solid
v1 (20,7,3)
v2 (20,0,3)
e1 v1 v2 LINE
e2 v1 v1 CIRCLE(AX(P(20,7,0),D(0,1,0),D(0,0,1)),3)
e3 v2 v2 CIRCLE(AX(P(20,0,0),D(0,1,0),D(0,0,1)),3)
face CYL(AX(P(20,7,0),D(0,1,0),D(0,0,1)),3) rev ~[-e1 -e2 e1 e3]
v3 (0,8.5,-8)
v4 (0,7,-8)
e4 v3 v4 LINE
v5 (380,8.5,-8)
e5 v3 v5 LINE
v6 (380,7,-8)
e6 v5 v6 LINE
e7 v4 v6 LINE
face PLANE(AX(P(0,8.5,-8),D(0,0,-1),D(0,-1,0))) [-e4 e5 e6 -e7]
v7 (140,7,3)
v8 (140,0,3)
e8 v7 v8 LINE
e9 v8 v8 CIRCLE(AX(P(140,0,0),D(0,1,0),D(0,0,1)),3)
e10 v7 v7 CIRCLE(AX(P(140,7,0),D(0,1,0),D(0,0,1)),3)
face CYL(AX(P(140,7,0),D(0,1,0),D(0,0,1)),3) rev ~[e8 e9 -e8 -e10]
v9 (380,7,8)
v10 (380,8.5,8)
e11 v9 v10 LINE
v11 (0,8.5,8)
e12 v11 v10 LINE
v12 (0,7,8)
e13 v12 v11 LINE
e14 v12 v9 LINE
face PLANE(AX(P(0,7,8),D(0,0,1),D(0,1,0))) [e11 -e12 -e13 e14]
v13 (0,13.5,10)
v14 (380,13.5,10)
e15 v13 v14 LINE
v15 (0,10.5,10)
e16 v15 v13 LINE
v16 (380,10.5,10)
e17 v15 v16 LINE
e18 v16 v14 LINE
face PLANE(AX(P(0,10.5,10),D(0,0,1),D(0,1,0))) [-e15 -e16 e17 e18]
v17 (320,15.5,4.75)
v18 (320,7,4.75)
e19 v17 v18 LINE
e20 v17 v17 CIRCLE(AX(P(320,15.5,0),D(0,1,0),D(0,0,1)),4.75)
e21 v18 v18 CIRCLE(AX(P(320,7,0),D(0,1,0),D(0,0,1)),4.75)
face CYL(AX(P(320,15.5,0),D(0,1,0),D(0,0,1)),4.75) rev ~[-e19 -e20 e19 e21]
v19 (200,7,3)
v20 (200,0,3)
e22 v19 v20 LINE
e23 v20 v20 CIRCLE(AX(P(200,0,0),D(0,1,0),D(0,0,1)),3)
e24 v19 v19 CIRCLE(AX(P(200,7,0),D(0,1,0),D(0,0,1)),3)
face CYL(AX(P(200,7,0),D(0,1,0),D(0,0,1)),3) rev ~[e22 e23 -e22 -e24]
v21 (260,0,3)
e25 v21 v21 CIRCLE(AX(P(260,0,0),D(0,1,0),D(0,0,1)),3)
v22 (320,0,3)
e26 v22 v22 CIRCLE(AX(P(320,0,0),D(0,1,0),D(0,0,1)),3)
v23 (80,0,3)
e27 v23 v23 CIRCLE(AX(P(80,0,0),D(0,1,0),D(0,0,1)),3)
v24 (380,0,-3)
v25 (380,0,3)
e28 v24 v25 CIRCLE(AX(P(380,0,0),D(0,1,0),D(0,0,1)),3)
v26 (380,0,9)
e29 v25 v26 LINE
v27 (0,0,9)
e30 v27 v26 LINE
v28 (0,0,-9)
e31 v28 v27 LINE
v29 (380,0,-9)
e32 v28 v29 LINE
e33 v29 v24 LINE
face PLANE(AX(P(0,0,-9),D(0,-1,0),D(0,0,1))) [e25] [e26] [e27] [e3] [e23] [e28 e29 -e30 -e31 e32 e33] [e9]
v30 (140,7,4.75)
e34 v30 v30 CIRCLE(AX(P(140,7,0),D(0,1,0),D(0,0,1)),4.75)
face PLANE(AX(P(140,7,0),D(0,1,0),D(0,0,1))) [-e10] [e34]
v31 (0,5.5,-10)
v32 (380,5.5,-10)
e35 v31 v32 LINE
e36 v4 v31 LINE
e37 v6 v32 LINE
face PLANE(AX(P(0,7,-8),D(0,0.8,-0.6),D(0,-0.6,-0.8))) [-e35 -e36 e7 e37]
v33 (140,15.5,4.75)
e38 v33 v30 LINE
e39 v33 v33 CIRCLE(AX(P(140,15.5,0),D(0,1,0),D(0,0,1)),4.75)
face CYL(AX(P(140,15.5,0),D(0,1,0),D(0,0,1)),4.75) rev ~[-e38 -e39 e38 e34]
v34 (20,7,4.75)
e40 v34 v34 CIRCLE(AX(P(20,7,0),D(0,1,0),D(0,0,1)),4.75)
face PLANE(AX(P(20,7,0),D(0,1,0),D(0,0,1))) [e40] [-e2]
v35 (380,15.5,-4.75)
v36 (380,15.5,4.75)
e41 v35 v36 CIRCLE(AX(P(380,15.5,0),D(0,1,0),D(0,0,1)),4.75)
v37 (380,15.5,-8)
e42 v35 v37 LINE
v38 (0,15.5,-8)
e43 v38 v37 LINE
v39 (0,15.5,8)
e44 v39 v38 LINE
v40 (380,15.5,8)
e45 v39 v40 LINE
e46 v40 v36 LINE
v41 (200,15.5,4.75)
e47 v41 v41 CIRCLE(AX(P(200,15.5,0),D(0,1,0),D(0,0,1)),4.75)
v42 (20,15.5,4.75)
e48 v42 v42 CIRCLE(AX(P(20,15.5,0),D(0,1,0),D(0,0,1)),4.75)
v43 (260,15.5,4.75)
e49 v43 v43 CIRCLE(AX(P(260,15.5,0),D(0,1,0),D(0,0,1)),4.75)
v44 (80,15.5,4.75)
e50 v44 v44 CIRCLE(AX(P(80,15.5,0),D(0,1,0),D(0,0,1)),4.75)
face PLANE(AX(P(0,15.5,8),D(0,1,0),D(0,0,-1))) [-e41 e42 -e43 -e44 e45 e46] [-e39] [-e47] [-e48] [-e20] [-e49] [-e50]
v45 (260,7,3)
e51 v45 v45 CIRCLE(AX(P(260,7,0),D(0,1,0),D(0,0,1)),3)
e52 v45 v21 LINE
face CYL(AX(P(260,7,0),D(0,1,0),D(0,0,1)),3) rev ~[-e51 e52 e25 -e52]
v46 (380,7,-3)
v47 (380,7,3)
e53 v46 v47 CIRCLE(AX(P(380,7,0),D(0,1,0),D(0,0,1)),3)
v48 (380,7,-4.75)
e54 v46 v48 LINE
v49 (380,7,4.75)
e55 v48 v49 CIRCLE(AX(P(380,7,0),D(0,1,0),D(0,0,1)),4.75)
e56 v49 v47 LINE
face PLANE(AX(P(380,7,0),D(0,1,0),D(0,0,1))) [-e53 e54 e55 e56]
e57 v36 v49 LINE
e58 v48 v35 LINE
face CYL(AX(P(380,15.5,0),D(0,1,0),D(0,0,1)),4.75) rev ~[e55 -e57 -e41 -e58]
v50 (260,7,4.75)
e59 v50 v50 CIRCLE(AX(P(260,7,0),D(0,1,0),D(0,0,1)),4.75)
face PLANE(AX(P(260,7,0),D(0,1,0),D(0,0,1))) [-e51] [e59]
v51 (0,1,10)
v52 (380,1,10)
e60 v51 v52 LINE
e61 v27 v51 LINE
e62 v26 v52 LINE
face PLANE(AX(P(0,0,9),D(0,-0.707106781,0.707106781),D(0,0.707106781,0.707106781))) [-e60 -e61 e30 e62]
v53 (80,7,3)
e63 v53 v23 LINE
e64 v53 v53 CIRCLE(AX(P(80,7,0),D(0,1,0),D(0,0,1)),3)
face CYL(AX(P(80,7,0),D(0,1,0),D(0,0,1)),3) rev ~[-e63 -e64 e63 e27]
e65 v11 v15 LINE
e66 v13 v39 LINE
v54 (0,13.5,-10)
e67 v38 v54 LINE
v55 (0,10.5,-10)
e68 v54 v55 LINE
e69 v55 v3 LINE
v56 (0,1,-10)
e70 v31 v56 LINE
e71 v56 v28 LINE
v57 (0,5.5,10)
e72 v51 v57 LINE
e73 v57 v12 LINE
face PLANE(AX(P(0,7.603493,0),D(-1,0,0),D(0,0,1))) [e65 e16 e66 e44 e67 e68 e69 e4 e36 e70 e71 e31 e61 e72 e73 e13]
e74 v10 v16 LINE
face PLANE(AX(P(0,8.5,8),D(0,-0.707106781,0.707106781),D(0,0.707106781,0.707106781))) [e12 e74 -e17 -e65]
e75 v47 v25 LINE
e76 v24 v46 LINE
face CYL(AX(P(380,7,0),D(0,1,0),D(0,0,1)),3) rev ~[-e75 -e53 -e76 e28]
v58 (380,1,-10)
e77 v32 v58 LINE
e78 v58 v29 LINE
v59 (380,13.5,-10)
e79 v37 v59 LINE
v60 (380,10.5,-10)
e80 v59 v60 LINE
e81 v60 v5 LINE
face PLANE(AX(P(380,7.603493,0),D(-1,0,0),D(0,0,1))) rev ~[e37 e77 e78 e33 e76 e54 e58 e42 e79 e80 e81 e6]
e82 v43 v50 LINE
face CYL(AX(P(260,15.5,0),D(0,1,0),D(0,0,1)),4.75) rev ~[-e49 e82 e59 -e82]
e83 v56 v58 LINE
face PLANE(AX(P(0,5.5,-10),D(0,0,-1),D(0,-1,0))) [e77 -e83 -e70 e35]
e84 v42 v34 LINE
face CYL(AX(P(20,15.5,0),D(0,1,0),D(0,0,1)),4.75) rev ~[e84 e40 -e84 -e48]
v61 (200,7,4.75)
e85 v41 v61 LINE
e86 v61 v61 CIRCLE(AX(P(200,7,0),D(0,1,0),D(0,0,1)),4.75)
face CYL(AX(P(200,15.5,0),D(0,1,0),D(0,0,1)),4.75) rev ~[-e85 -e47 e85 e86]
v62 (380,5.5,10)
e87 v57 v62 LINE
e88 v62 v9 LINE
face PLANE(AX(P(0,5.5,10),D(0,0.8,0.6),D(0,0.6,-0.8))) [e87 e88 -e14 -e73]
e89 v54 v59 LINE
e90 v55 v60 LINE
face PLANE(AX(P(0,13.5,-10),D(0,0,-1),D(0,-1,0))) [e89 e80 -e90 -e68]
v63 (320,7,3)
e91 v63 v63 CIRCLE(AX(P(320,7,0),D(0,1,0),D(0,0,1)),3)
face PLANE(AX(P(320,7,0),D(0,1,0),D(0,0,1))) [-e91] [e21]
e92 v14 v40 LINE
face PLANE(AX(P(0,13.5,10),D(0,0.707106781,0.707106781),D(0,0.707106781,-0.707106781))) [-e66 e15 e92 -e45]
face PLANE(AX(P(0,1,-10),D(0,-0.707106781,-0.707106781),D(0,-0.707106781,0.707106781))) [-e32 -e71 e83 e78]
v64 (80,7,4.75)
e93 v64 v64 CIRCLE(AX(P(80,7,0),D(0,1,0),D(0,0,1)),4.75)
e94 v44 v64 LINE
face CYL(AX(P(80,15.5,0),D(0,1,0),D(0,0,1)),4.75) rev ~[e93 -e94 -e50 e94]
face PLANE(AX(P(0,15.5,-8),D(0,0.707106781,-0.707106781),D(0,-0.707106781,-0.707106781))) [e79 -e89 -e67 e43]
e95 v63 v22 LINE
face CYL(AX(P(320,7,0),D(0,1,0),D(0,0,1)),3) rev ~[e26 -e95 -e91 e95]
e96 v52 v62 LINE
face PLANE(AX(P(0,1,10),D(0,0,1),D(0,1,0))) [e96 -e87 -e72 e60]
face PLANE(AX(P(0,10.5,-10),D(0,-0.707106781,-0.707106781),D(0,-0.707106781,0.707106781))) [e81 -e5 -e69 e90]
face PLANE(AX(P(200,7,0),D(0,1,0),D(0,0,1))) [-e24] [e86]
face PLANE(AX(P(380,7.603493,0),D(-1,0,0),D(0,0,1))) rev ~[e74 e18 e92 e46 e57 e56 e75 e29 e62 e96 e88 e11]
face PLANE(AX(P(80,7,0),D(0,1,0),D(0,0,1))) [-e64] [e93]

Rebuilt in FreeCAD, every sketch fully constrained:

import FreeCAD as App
import Part
import Sketcher
Q = App.Units.Quantity

doc = App.newDocument("Part")
body = doc.addObject("PartDesign::Body", "Body")

sketch1 = body.newObject("Sketcher::SketchObject", "Sketch")
sketch1.AttachmentSupport = (doc.getObject("YZ_Plane"), [""])
sketch1.MapMode = "FlatFace"
sketch1.addGeometry([
    Part.LineSegment(App.Vector(0, 9, 0), App.Vector(0, -9, 0)),
    Part.LineSegment(App.Vector(0, -9, 0), App.Vector(1, -10, 0)),
    Part.LineSegment(App.Vector(1, -10, 0), App.Vector(5.5, -10, 0)),
    Part.LineSegment(App.Vector(5.5, -10, 0), App.Vector(7, -8, 0)),
    Part.LineSegment(App.Vector(7, -8, 0), App.Vector(8.5, -8, 0)),
    Part.LineSegment(App.Vector(8.5, -8, 0), App.Vector(10.5, -10, 0)),
    Part.LineSegment(App.Vector(10.5, -10, 0), App.Vector(13.5, -10, 0)),
    Part.LineSegment(App.Vector(13.5, -10, 0), App.Vector(15.5, -8, 0)),
    Part.LineSegment(App.Vector(15.5, -8, 0), App.Vector(15.5, 8, 0)),
    Part.LineSegment(App.Vector(15.5, 8, 0), App.Vector(13.5, 10, 0)),
    Part.LineSegment(App.Vector(13.5, 10, 0), App.Vector(10.5, 10, 0)),
    Part.LineSegment(App.Vector(10.5, 10, 0), App.Vector(8.5, 8, 0)),
    Part.LineSegment(App.Vector(8.5, 8, 0), App.Vector(7, 8, 0)),
    Part.LineSegment(App.Vector(7, 8, 0), App.Vector(5.5, 10, 0)),
    Part.LineSegment(App.Vector(5.5, 10, 0), App.Vector(1, 10, 0)),
    Part.LineSegment(App.Vector(1, 10, 0), App.Vector(0, 9, 0)),
], False)
sketch1.addConstraint([
    Sketcher.Constraint("Coincident", 0, 2, 1, 1),
    Sketcher.Constraint("Coincident", 1, 2, 2, 1),
    Sketcher.Constraint("Coincident", 2, 2, 3, 1),
    Sketcher.Constraint("Coincident", 3, 2, 4, 1),
    Sketcher.Constraint("Coincident", 4, 2, 5, 1),
    Sketcher.Constraint("Coincident", 5, 2, 6, 1),
    Sketcher.Constraint("Coincident", 6, 2, 7, 1),
    Sketcher.Constraint("Coincident", 7, 2, 8, 1),
    Sketcher.Constraint("Coincident", 8, 2, 9, 1),
    Sketcher.Constraint("Coincident", 9, 2, 10, 1),
    Sketcher.Constraint("Coincident", 10, 2, 11, 1),
    Sketcher.Constraint("Coincident", 11, 2, 12, 1),
    Sketcher.Constraint("Coincident", 12, 2, 13, 1),
    Sketcher.Constraint("Coincident", 13, 2, 14, 1),
    Sketcher.Constraint("Coincident", 14, 2, 15, 1),
    Sketcher.Constraint("Coincident", 15, 2, 0, 1),
    Sketcher.Constraint("Vertical", 0),
    Sketcher.Constraint("Horizontal", 2),
    Sketcher.Constraint("Horizontal", 4),
    Sketcher.Constraint("Horizontal", 6),
    Sketcher.Constraint("Vertical", 8),
    Sketcher.Constraint("Horizontal", 10),
    Sketcher.Constraint("Horizontal", 12),
    Sketcher.Constraint("Horizontal", 14),
    Sketcher.Constraint("Symmetric", 0, 2, 15, 2, -1, 1),
    Sketcher.Constraint("Symmetric", 6, 2, 9, 2, -1),
    Sketcher.Constraint("Symmetric", 4, 2, 11, 2, -1),
    Sketcher.Constraint("Symmetric", 2, 2, 13, 2, -1),
    Sketcher.Constraint("Parallel", 1, 5),
    Sketcher.Constraint("Perpendicular", 5, 7),
    Sketcher.Constraint("Perpendicular", 7, 9),
    Sketcher.Constraint("Perpendicular", 9, 11),
    Sketcher.Constraint("Parallel", 11, 15),
    Sketcher.Constraint("Horizontal", 2, 2, 5, 2),
    Sketcher.Constraint("Horizontal", 4, 2, 7, 2),
    Sketcher.Constraint("Horizontal", 8, 2, 11, 2),
    Sketcher.Constraint("Vertical", 3, 2, 12, 2),
    Sketcher.Constraint("DistanceX", 6, 1, 6, 2, Q("3 mm")),
    Sketcher.Constraint("DistanceY", 0, 2, 0, 1, Q("18 mm")),
    Sketcher.Constraint("DistanceY", 8, 1, 8, 2, Q("16 mm")),
    Sketcher.Constraint("DistanceX", 2, 1, 2, 2, Q("4.5 mm")),
    Sketcher.Constraint("DistanceX", 4, 1, 4, 2, Q("1.5 mm")),
    Sketcher.Constraint("DistanceX", -1, 1, 1, 2, Q("1 mm")),
    Sketcher.Constraint("DistanceX", -1, 1, 3, 2, Q("7 mm")),
])
pad1 = body.newObject("PartDesign::Pad", "Pad")
pad1.Profile = sketch1
pad1.Length = 380

sketch2 = body.newObject("Sketcher::SketchObject", "Sketch001")
sketch2.AttachmentSupport = (doc.getObject("XZ_Plane"), [""])
sketch2.MapMode = "FlatFace"
sketch2.AttachmentOffset = App.Placement(App.Vector(0, 0, -15.5), App.Rotation())
sketch2.addGeometry(Part.Circle(App.Vector(20, 0, 0), App.Vector(0, 0, 1), 4.8), False)
sketch2.addConstraint([
    Sketcher.Constraint("PointOnObject", 0, 3, -1),
    Sketcher.Constraint("Diameter", 0, Q("9.5 mm")),
    Sketcher.Constraint("DistanceX", -1, 1, 0, 3, Q("20 mm")),
])
pocket1 = body.newObject("PartDesign::Pocket", "Pocket")
pocket1.Profile = sketch2
pocket1.Length = 8.5
pocket1.Reversed = True

sketch3 = body.newObject("Sketcher::SketchObject", "Sketch002")
sketch3.AttachmentSupport = (doc.getObject("XZ_Plane"), [""])
sketch3.MapMode = "FlatFace"
sketch3.AttachmentOffset = App.Placement(App.Vector(0, 0, -7), App.Rotation())
sketch3.addGeometry(Part.Circle(App.Vector(20, 0, 0), App.Vector(0, 0, 1), 3), False)
sketch3.addConstraint([
    Sketcher.Constraint("PointOnObject", 0, 3, -1),
    Sketcher.Constraint("Diameter", 0, Q("6 mm")),
    Sketcher.Constraint("DistanceX", -1, 1, 0, 3, Q("20 mm")),
])
pocket2 = body.newObject("PartDesign::Pocket", "Pocket001")
pocket2.Profile = sketch3
pocket2.Type = "ThroughAll"
pocket2.Reversed = True
doc.recompute()

linearpattern = body.newObject("PartDesign::LinearPattern", "LinearPattern")
linearpattern.Originals = [pocket1, pocket2]
linearpattern.Direction = (doc.getObject("X_Axis"), [""])
linearpattern.Mode = "offset"
linearpattern.Offset = 60
linearpattern.Occurrences = 33
body.Tip = linearpattern

doc.recompute()
